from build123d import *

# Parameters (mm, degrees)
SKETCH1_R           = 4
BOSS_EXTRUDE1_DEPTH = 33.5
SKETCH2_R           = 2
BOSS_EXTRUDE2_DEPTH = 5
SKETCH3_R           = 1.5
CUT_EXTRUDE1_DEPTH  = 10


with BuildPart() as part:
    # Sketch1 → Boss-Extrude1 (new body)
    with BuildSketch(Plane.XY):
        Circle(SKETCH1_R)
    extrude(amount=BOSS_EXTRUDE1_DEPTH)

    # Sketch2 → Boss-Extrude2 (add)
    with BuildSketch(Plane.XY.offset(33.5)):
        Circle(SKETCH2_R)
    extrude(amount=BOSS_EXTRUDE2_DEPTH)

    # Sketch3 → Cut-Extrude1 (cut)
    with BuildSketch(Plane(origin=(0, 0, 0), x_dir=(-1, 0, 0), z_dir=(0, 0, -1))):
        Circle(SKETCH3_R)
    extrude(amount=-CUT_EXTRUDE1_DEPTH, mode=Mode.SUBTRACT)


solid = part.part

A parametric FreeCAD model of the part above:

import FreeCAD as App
import Part
import Sketcher

doc = App.newDocument("Part")
params = doc.addObject("Spreadsheet::Sheet", "Params")
for row, (alias, value) in enumerate([
    ("sketch1_diameter", "8 mm"),
    ("pad1_length", "33.5 mm"),
    ("sketch2_diameter", "4 mm"),
    ("pad2_length", "5 mm"),
    ("sketch3_diameter", "3 mm"),
    ("pocket1_length", "10 mm"),
], start=1):
    params.set(f"A{row}", alias)
    params.set(f"B{row}", "=" + value)
    params.setAlias(f"B{row}", alias)

body = doc.addObject("PartDesign::Body", "Body")

# Sketch on XY plane
sketch1 = doc.addObject("Sketcher::SketchObject", "Sketch")
body.addObject(sketch1)
sketch1.AttachmentSupport = (doc.XY_Plane, [""])
sketch1.MapMode = "FlatFace"
sketch1.addGeometry(Part.Circle(App.Vector(0, 0, 0), App.Vector(0, 0, 1), 4), False)
sketch1.addConstraint([
    Sketcher.Constraint("Coincident", 0, 3, -1, 1),
    Sketcher.Constraint("Diameter", 0, 8.0),
])
sketch1.setExpression("Constraints[1]", "Params.sketch1_diameter")
pad1 = doc.addObject("PartDesign::Pad", "Pad")
body.addObject(pad1)
pad1.Profile = sketch1
pad1.setExpression("Length", "Params.pad1_length")

# Sketch on XY plane
sketch2 = doc.addObject("Sketcher::SketchObject", "Sketch001")
body.addObject(sketch2)
sketch2.AttachmentSupport = (doc.XY_Plane, [""])
sketch2.MapMode = "FlatFace"
sketch2.AttachmentOffset = App.Placement(App.Vector(0, 0, 33.5), App.Rotation())
sketch2.addGeometry(Part.Circle(App.Vector(0, 0, 0), App.Vector(0, 0, 1), 2), False)
sketch2.addConstraint([
    Sketcher.Constraint("Coincident", 0, 3, -1, 1),
    Sketcher.Constraint("Diameter", 0, 4.0),
])
sketch2.setExpression("Constraints[1]", "Params.sketch2_diameter")
pad2 = doc.addObject("PartDesign::Pad", "Pad001")
body.addObject(pad2)
pad2.Profile = sketch2
pad2.setExpression("Length", "Params.pad2_length")

# Sketch on XY plane
sketch3 = doc.addObject("Sketcher::SketchObject", "Sketch002")
body.addObject(sketch3)
sketch3.AttachmentSupport = (doc.XY_Plane, [""])
sketch3.MapMode = "FlatFace"
sketch3.addGeometry(Part.Circle(App.Vector(0, 0, 0), App.Vector(0, 0, 1), 1.5), False)
sketch3.addConstraint([
    Sketcher.Constraint("Coincident", 0, 3, -1, 1),
    Sketcher.Constraint("Diameter", 0, 3.0),
])
sketch3.setExpression("Constraints[1]", "Params.sketch3_diameter")
pocket1 = doc.addObject("PartDesign::Pocket", "Pocket")
body.addObject(pocket1)
pocket1.Profile = sketch3
pocket1.setExpression("Length", "Params.pocket1_length")
pocket1.Reversed = True

doc.recompute()
